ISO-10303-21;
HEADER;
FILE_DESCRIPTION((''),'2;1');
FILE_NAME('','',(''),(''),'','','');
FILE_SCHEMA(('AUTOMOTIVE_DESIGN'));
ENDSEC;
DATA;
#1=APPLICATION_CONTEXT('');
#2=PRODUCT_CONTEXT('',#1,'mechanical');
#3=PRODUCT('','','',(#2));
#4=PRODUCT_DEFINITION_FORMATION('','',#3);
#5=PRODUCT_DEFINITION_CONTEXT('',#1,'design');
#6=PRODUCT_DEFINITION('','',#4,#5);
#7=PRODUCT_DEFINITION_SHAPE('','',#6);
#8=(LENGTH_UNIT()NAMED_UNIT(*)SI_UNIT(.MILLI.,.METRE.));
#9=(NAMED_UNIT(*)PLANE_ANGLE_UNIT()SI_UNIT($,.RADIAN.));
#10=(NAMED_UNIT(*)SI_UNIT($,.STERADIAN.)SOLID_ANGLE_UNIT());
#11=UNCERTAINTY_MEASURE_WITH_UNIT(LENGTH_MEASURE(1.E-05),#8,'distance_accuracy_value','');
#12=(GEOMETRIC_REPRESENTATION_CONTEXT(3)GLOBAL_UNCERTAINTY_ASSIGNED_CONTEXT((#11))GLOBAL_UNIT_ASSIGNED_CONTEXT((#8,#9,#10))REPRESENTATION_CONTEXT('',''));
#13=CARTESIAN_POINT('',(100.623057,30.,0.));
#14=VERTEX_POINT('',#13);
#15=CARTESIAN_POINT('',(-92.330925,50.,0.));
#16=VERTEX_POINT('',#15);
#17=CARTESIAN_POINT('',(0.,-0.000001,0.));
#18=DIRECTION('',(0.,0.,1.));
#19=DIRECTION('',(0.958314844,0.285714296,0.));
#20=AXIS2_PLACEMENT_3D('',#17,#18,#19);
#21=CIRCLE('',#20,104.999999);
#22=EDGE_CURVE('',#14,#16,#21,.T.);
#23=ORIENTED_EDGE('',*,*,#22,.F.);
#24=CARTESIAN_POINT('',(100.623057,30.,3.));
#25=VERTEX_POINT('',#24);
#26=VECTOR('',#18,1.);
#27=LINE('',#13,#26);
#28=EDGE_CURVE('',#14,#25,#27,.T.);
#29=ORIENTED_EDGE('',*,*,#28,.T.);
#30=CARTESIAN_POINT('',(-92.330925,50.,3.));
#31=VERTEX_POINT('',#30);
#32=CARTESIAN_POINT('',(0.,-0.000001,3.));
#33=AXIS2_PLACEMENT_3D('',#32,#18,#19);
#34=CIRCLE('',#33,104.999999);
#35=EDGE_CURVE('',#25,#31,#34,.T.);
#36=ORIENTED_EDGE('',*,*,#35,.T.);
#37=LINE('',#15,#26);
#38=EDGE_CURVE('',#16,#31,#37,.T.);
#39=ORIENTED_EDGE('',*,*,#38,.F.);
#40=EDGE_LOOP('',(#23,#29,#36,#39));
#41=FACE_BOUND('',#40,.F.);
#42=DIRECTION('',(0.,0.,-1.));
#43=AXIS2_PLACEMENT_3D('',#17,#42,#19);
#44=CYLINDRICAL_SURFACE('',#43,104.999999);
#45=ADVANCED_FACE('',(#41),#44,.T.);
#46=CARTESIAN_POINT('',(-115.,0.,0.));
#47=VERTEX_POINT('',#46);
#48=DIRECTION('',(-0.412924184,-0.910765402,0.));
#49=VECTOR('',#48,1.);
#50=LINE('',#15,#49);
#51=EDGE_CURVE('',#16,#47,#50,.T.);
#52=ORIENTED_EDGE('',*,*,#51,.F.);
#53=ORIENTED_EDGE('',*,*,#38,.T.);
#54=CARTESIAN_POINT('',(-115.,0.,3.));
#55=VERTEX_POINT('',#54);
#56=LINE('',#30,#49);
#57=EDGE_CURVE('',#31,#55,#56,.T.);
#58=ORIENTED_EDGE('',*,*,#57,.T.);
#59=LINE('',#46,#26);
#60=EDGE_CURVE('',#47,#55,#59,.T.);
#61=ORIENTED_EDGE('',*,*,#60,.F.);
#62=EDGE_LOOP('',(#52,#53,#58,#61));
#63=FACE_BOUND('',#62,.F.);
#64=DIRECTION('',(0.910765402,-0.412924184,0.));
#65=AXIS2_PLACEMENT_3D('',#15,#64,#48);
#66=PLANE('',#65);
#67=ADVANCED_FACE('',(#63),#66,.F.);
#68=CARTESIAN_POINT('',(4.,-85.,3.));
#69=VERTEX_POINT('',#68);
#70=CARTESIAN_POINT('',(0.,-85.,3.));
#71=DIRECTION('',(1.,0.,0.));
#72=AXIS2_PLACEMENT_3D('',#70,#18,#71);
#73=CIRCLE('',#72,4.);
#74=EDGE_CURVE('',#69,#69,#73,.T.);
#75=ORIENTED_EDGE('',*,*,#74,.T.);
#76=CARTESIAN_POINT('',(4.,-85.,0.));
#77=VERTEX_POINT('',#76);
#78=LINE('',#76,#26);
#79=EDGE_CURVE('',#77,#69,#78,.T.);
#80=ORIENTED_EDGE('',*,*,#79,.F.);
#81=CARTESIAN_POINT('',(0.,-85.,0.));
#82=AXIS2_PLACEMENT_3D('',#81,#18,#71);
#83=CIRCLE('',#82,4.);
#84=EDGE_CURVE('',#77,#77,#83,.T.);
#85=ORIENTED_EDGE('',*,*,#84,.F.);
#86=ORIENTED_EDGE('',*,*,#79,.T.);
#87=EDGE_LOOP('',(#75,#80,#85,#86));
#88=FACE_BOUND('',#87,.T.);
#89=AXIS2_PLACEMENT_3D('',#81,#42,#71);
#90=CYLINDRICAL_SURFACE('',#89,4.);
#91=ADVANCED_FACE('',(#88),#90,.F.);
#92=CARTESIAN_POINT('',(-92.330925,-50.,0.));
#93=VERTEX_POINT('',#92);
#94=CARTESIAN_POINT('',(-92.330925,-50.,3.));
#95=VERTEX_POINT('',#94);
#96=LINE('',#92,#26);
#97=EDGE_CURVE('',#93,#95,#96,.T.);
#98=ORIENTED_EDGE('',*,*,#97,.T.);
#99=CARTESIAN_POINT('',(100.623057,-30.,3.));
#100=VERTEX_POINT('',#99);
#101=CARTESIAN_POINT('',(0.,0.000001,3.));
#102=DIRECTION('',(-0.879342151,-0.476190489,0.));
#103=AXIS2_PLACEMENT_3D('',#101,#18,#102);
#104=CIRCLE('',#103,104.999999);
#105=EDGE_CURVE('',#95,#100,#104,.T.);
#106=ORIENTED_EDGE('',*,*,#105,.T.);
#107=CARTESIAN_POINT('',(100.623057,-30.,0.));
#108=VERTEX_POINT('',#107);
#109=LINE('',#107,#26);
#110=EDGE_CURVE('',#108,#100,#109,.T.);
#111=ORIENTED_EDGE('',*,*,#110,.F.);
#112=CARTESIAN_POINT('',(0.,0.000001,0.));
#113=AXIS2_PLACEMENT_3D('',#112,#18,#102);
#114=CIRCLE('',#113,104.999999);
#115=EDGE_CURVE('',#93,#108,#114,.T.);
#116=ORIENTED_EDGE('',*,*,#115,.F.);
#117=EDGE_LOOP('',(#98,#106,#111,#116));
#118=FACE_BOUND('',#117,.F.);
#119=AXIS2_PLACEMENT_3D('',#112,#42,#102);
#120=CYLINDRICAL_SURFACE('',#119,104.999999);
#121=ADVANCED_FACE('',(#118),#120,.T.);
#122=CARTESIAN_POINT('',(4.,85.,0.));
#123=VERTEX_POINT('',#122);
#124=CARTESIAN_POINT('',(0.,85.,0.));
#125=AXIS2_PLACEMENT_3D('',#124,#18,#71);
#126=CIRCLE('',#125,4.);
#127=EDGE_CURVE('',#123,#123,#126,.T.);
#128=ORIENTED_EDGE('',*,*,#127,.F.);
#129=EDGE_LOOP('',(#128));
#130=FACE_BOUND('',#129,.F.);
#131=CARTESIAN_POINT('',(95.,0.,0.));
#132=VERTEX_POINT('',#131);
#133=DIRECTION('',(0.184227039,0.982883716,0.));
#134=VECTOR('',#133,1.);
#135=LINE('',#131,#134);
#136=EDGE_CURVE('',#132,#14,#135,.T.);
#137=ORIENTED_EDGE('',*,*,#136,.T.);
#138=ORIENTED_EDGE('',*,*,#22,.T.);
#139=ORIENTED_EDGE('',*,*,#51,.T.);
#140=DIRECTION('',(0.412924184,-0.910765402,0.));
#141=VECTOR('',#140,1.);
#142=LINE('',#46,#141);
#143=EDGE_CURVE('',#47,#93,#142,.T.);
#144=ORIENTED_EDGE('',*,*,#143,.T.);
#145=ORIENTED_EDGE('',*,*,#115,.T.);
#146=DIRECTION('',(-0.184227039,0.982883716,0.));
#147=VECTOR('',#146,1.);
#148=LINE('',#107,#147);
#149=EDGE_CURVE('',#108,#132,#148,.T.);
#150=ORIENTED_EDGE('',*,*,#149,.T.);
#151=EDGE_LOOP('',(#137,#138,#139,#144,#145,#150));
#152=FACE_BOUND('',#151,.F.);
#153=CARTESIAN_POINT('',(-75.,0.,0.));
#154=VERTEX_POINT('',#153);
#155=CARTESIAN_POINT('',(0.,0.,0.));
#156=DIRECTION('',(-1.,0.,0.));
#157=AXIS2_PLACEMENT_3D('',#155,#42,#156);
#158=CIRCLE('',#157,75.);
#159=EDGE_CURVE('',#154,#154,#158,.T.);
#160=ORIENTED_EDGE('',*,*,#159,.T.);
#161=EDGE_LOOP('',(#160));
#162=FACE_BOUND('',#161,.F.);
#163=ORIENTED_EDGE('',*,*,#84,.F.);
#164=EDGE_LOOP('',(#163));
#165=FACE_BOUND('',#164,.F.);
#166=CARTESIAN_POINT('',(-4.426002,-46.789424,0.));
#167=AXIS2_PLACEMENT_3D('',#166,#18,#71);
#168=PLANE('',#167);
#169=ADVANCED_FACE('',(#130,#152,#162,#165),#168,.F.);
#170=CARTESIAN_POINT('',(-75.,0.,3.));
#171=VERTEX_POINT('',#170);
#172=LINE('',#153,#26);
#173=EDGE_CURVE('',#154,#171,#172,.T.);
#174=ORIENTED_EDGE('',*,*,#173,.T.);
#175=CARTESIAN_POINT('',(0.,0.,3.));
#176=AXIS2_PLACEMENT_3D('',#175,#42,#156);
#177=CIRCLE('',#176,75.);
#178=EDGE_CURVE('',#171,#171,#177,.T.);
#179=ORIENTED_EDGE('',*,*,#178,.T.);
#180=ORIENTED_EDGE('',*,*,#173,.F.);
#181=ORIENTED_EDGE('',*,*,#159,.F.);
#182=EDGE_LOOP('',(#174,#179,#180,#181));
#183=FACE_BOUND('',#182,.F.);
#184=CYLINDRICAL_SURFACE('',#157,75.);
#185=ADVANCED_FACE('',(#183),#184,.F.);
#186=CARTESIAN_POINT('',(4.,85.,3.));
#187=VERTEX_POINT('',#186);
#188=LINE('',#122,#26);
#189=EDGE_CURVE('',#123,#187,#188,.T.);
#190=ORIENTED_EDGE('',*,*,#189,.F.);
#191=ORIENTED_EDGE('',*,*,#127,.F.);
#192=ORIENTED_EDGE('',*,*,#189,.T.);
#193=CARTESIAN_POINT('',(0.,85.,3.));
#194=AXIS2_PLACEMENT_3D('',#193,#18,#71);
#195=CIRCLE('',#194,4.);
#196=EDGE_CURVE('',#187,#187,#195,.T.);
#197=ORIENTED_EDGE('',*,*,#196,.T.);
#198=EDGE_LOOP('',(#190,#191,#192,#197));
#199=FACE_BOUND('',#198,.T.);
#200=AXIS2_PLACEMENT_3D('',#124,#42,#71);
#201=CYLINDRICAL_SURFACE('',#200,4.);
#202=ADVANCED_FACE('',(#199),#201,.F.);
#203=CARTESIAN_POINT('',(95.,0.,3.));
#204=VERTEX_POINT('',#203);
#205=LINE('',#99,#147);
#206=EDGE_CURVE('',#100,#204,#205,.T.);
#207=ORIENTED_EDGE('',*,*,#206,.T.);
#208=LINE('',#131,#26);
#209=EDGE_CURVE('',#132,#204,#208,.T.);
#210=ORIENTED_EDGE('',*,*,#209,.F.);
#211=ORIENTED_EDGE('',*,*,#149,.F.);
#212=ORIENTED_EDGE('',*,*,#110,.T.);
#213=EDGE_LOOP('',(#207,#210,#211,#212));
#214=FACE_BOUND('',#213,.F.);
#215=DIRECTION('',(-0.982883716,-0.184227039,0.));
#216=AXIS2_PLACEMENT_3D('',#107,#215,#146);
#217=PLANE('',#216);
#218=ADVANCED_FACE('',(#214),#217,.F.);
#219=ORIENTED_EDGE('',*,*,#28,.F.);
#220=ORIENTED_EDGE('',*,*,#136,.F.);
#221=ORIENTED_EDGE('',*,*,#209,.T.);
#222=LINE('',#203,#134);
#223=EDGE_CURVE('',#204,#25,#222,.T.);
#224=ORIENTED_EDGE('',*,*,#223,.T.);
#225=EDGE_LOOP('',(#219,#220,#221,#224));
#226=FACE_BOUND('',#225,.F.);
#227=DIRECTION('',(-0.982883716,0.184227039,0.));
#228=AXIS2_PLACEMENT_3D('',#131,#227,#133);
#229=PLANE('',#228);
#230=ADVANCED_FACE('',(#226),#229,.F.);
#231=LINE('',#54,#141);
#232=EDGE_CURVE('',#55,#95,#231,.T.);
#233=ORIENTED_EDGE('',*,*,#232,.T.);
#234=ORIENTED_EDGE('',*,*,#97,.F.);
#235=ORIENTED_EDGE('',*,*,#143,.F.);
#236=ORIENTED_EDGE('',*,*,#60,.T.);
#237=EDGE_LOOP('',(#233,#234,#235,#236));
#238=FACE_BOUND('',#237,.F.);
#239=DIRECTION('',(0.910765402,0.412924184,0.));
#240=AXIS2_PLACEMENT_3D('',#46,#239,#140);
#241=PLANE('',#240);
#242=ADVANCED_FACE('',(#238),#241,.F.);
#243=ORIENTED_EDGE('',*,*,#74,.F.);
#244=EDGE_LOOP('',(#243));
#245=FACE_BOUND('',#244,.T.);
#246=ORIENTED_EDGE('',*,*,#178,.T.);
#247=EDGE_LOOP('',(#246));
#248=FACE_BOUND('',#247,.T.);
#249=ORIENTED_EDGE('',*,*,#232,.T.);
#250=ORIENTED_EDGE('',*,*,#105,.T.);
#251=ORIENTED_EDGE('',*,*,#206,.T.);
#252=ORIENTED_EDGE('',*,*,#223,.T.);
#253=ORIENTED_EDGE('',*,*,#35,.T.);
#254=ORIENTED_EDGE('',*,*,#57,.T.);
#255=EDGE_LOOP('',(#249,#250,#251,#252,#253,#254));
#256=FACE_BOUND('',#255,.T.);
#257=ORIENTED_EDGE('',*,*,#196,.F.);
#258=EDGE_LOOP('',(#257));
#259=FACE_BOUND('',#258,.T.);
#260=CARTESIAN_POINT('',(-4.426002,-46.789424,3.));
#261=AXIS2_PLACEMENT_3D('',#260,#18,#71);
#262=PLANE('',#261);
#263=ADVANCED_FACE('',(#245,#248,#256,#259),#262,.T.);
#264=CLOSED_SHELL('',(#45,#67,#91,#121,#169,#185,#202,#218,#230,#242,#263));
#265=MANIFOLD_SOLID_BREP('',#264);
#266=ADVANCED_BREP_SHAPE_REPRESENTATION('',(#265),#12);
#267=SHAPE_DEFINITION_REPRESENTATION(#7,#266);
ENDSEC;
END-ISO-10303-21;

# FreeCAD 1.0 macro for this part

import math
import FreeCAD as App
import Part
import Sketcher
from FreeCAD import Vector
Q = App.Units.Quantity

doc = App.newDocument("Part")
params = doc.addObject("Spreadsheet::Sheet", "Params")
for row, (alias, value) in enumerate([
    ("sketch1_diameter", "8 mm"),
    ("sketch1_diameter2", "150 mm"),
    ("sketch1_radius", "104.999999 mm"),
    ("pad1_length", "3 mm"),
], start=1):
    params.set(f"A{row}", alias)
    params.set(f"B{row}", "=" + value)
    params.setAlias(f"B{row}", alias)

body = doc.addObject("PartDesign::Body", "Body")

# Sketch on XY plane
sketch1 = body.newObject("Sketcher::SketchObject", "Sketch")
sketch1.AttachmentSupport = (doc.getObject("XY_Plane"), [""])
sketch1.MapMode = "FlatFace"
sketch1.addGeometry([
    Part.LineSegment(Vector(100.6, -30, 0), Vector(95, 0, 0)),  # 0
    Part.LineSegment(Vector(95, 0, 0), Vector(100.6, 30, 0)),  # 1
    Part.ArcOfCircle(Part.Circle(Vector(0, 0, 0), Vector(0, 0, 1), 105), math.radians(17), math.radians(152)),  # 2
    Part.LineSegment(Vector(-92.3, 50, 0), Vector(-115, 0, 0)),  # 3
    Part.LineSegment(Vector(-115, 0, 0), Vector(-92.3, -50, 0)),  # 4
    Part.ArcOfCircle(Part.Circle(Vector(0, 0, 0), Vector(0, 0, 1), 105), math.radians(-152), math.radians(-17)),  # 5
    Part.Circle(Vector(0, -85, 0), Vector(0, 0, 1), 4),  # 6
    Part.Circle(Vector(0, 0, 0), Vector(0, 0, 1), 75),  # 7
    Part.Circle(Vector(0, 85, 0), Vector(0, 0, 1), 4),  # 8
], False)
sketch1.addConstraint([
    Sketcher.Constraint("Coincident", 0, 2, 1, 1),
    Sketcher.Constraint("Coincident", 1, 2, 2, 1),
    Sketcher.Constraint("Coincident", 2, 2, 3, 1),
    Sketcher.Constraint("Coincident", 3, 2, 4, 1),
    Sketcher.Constraint("Coincident", 4, 2, 5, 1),
    Sketcher.Constraint("Coincident", 5, 2, 0, 1),
    Sketcher.Constraint("Coincident", 2, 3, -1, 1),
    Sketcher.Constraint("Coincident", 5, 3, -1, 1),
    Sketcher.Constraint("Coincident", 7, 3, -1, 1),
    Sketcher.Constraint("Equal", 2, 5),
    Sketcher.Constraint("Equal", 6, 8),
    Sketcher.Constraint("Symmetric", 6, 3, 8, 3, -1, 1),
    Sketcher.Constraint("PointOnObject", 6, 3, -2),
    Sketcher.Constraint("PointOnObject", 0, 2, -1),
    Sketcher.Constraint("PointOnObject", 3, 2, -1),
    Sketcher.Constraint("Vertical", 2, 2, 4, 2),
    Sketcher.Constraint("Vertical", 1, 2, 5, 2),
    Sketcher.Constraint("Diameter", 6, Q("8 mm")),
    Sketcher.Constraint("Diameter", 7, Q("150 mm")),
    Sketcher.Constraint("Radius", 2, Q("104.999999 mm")),
    Sketcher.Constraint("DistanceY", 6, 3, -1, 1, Q("85 mm")),
    Sketcher.Constraint("DistanceX", -1, 1, 0, 2, Q("95 mm")),
    Sketcher.Constraint("DistanceY", -1, 1, 1, 2, Q("30 mm")),
    Sketcher.Constraint("DistanceY", -1, 1, 2, 2, Q("50 mm")),
    Sketcher.Constraint("DistanceX", 3, 2, -1, 1, Q("115 mm")),
])
sketch1.setExpression("Constraints[17]", "Params.sketch1_diameter")
sketch1.setExpression("Constraints[18]", "Params.sketch1_diameter2")
sketch1.setExpression("Constraints[19]", "Params.sketch1_radius")
pad1 = body.newObject("PartDesign::Pad", "Pad")
pad1.Profile = sketch1
pad1.setExpression("Length", "Params.pad1_length")

doc.recompute()
